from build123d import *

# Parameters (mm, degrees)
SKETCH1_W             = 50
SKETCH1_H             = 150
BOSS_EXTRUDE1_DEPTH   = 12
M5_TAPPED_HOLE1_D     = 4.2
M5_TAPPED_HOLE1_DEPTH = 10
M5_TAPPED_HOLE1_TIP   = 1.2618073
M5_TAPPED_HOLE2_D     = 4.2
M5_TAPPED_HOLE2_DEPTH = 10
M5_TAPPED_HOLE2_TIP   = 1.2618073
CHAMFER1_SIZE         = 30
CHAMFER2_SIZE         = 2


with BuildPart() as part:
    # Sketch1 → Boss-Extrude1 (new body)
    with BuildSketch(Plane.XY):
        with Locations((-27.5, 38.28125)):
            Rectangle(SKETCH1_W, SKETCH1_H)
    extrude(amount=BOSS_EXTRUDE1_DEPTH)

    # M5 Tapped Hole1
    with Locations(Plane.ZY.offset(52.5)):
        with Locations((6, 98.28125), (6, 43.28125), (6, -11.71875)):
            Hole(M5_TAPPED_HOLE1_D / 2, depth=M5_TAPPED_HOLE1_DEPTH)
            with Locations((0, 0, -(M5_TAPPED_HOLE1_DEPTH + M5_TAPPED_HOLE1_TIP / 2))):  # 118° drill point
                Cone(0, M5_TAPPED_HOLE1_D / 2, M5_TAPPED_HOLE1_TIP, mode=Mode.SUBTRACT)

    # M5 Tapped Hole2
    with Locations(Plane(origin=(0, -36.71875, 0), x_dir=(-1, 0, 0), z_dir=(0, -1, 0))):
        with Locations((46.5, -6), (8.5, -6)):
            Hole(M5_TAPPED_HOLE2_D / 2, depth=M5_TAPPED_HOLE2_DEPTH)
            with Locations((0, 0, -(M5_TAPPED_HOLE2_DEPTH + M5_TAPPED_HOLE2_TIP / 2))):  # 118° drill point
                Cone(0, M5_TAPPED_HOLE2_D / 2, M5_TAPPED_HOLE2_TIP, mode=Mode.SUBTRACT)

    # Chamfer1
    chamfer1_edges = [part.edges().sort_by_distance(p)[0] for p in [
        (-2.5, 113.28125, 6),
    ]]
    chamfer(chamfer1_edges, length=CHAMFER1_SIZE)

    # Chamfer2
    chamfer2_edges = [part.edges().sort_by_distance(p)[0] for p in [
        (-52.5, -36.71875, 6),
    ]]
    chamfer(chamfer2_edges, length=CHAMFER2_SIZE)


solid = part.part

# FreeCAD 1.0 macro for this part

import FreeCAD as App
import Part
import Sketcher

V = App.Vector


def edges_at(feature, points):
    """Names of the edges that pass closest to the given points."""
    edges = feature.Shape.Edges
    near = lambda p: min(range(len(edges)), key=lambda i: edges[i].distToShape(Part.Vertex(*p))[0])
    return sorted({f"Edge{near(p) + 1}" for p in points})


def add_polygon(sketch, points):
    """Adds a closed chain of lines whose ends are joined by coincident constraints."""
    first, n = sketch.GeometryCount, len(points)
    for a, b in zip(points, points[1:] + points[:1]):
        sketch.addGeometry(Part.LineSegment(App.Vector(*a, 0), App.Vector(*b, 0)), False)
    for i in range(n):
        sketch.addConstraint(Sketcher.Constraint("Coincident", first + i, 2, first + (i + 1) % n, 1))

doc = App.newDocument("Part")
body = doc.addObject("PartDesign::Body", "Body")

sketch1 = doc.addObject("Sketcher::SketchObject", "Sketch")
body.addObject(sketch1)
sketch1.AttachmentSupport = (doc.XY_Plane, [""])
sketch1.MapMode = "FlatFace"
add_polygon(sketch1, [(-52.5, 113.28125), (-52.5, -36.71875), (-2.5, -36.71875), (-2.5, 113.28125)])
sketch1.addConstraint([
    Sketcher.Constraint("Vertical", 0),
    Sketcher.Constraint("Horizontal", 1),
    Sketcher.Constraint("Vertical", 2),
    Sketcher.Constraint("Horizontal", 3),
    Sketcher.Constraint("DistanceX", 1, 1, 1, 2, 50.0),
    Sketcher.Constraint("DistanceY", 0, 2, 0, 1, 150.0),
    Sketcher.Constraint("DistanceX", 0, 2, -1, 1, 52.5),
    Sketcher.Constraint("DistanceY", 0, 2, -1, 1, 36.71875),
])
pad1 = doc.addObject("PartDesign::Pad", "Pad")
body.addObject(pad1)
pad1.Profile = sketch1
pad1.Length = 12

sketch2 = doc.addObject("Sketcher::SketchObject", "Sketch001")
body.addObject(sketch2)
sketch2.AttachmentSupport = (doc.YZ_Plane, [""])
sketch2.MapMode = "FlatFace"
sketch2.AttachmentOffset = App.Placement(V(0, 0, -52.5), App.Rotation())
sketch2.addGeometry([
    Part.Circle(V(98.28125, 6, 0), V(0, 0, 1), 2.1),
    Part.Circle(V(43.28125, 6, 0), V(0, 0, 1), 2.1),
    Part.Circle(V(-11.71875, 6, 0), V(0, 0, 1), 2.1),
], False)
sketch2.addConstraint([
    Sketcher.Constraint("Equal", 0, 1),
    Sketcher.Constraint("Equal", 1, 2),
    Sketcher.Constraint("Horizontal", 0, 3, 1, 3),
    Sketcher.Constraint("Horizontal", 1, 3, 2, 3),
    Sketcher.Constraint("Diameter", 0, 4.2),
    Sketcher.Constraint("DistanceY", -1, 1, 0, 3, 6.0),
    Sketcher.Constraint("DistanceX", 1, 3, 0, 3, 55.0),
    Sketcher.Constraint("DistanceX", 2, 3, 1, 3, 55.0),
    Sketcher.Constraint("DistanceX", -1, 1, 0, 3, 98.28125),
])
doc.recompute()
hole = doc.addObject("PartDesign::Hole", "Hole")
body.addObject(hole)
hole.Profile = sketch2
hole.ThreadType = "None"
hole.Diameter = 4.2
hole.DepthType = "Dimension"
hole.Depth = 10
hole.DrillPoint = "Angled"
hole.DrillPointAngle = 118
hole.Reversed = True

sketch3 = doc.addObject("Sketcher::SketchObject", "Sketch002")
body.addObject(sketch3)
sketch3.AttachmentSupport = (doc.XZ_Plane, [""])
sketch3.MapMode = "FlatFace"
sketch3.AttachmentOffset = App.Placement(V(0, 0, 36.71875), App.Rotation())
sketch3.addGeometry([
    Part.Circle(V(-46.5, 6, 0), V(0, 0, 1), 2.1),
    Part.Circle(V(-8.5, 6, 0), V(0, 0, 1), 2.1),
], False)
sketch3.addConstraint([
    Sketcher.Constraint("Equal", 0, 1),
    Sketcher.Constraint("Horizontal", 0, 3, 1, 3),
    Sketcher.Constraint("Diameter", 0, 4.2),
    Sketcher.Constraint("DistanceY", -1, 1, 0, 3, 6.0),
    Sketcher.Constraint("DistanceX", 0, 3, 1, 3, 38.0),
    Sketcher.Constraint("DistanceX", 0, 3, -1, 1, 46.5),
])
doc.recompute()
hole2 = doc.addObject("PartDesign::Hole", "Hole001")
body.addObject(hole2)
hole2.Profile = sketch3
hole2.ThreadType = "None"
hole2.Diameter = 4.2
hole2.DepthType = "Dimension"
hole2.Depth = 10
hole2.DrillPoint = "Angled"
hole2.DrillPointAngle = 118
doc.recompute()

chamfer = doc.addObject("PartDesign::Chamfer", "Chamfer")
body.addObject(chamfer)
chamfer.Base = (hole2, edges_at(hole2, [(-2.5, 113.281, 6)]))
chamfer.Size = 30
doc.recompute()

chamfer2 = doc.addObject("PartDesign::Chamfer", "Chamfer001")
body.addObject(chamfer2)
chamfer2.Base = (chamfer, edges_at(chamfer, [(-52.5, -36.719, 6)]))
chamfer2.Size = 2

doc.recompute()
